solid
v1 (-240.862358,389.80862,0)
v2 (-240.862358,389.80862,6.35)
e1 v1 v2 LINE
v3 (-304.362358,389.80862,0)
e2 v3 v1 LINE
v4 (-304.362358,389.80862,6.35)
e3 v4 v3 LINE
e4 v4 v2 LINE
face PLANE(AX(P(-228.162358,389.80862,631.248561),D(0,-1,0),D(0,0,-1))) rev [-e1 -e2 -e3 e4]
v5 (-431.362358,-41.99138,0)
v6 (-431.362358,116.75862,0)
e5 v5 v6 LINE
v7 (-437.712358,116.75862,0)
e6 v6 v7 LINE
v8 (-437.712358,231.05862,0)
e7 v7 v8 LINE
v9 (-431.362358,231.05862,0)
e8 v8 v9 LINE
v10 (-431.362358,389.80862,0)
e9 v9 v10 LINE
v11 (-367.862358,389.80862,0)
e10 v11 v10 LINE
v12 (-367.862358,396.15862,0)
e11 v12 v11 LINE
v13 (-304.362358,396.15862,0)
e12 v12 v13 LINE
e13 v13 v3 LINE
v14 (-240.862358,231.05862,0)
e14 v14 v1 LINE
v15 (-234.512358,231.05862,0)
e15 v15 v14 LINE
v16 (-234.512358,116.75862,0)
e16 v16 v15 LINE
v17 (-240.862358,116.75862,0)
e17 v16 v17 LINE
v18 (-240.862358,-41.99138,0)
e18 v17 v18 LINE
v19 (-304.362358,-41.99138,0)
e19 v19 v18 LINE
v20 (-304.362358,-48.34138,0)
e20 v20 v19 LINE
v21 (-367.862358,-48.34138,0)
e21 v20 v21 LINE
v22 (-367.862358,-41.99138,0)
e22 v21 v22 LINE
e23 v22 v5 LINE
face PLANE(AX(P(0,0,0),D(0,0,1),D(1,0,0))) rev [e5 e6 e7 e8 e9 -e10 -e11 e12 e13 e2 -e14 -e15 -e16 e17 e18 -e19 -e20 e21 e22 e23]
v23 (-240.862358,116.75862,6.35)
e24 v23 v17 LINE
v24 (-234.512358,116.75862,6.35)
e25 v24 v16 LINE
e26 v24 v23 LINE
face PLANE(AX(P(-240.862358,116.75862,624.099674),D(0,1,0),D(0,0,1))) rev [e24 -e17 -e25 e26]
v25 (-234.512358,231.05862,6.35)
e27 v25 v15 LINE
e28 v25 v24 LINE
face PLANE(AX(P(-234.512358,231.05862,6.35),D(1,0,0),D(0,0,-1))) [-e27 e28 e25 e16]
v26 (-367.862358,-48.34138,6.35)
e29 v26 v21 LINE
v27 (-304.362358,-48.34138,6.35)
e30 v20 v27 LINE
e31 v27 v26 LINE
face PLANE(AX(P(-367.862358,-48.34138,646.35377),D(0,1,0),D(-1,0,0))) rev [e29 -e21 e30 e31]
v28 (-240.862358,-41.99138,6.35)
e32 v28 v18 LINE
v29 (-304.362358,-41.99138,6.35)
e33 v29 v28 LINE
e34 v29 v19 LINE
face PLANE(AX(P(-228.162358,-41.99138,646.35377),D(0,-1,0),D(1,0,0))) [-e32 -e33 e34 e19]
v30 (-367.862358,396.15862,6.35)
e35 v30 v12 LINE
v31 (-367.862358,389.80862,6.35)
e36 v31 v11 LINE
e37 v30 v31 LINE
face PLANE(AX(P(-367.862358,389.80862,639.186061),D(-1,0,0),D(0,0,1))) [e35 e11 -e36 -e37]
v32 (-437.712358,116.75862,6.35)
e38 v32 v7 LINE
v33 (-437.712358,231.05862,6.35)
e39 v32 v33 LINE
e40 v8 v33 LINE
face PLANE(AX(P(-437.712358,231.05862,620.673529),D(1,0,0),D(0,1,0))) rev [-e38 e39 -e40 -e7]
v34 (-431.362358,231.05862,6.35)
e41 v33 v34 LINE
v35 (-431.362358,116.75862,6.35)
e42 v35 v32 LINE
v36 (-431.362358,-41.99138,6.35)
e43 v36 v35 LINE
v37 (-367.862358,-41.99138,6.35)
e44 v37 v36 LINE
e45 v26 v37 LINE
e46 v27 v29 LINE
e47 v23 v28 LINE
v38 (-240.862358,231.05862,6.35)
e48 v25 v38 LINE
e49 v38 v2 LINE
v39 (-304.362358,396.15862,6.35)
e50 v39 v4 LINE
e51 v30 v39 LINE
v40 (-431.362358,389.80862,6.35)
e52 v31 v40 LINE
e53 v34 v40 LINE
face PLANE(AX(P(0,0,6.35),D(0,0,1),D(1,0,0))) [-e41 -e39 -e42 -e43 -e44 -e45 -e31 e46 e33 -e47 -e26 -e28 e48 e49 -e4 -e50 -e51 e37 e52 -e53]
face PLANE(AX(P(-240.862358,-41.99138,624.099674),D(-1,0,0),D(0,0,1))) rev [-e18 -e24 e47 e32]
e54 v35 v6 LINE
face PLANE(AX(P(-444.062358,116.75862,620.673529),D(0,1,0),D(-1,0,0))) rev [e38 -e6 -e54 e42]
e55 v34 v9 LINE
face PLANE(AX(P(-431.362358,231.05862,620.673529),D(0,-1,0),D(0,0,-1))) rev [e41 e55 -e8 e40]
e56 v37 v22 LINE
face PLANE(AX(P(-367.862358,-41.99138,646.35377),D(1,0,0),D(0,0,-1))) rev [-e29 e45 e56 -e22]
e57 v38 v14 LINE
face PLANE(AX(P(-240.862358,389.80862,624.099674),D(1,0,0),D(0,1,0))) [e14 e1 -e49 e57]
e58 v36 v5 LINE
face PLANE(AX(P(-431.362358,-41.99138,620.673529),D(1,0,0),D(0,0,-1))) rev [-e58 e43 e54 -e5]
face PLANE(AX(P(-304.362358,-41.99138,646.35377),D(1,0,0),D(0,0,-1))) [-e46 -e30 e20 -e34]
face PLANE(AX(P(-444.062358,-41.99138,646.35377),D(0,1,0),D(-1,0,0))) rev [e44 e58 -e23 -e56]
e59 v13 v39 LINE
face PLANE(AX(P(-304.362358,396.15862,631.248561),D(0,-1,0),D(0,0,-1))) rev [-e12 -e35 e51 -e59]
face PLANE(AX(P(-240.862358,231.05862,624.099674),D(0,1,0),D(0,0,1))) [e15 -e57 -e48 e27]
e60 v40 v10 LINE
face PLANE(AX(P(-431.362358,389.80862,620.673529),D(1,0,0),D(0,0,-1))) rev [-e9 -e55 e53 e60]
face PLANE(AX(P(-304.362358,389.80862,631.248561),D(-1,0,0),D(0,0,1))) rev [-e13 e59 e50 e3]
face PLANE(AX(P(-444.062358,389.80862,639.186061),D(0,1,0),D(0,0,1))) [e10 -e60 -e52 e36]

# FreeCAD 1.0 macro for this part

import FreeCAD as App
import Part
import Sketcher
from FreeCAD import Vector
Q = App.Units.Quantity


def add_polygon(sketch, points):
    """Adds a closed chain of lines whose ends are joined by coincident constraints."""
    first, n = sketch.GeometryCount, len(points)
    for a, b in zip(points, points[1:] + points[:1]):
        sketch.addGeometry(Part.LineSegment(App.Vector(*a, 0), App.Vector(*b, 0)), False)
    for i in range(n):
        sketch.addConstraint(Sketcher.Constraint("Coincident", first + i, 2, first + (i + 1) % n, 1))

doc = App.newDocument("Part")
body = doc.addObject("PartDesign::Body", "Body")

# Sketch on XY plane
sketch1 = doc.addObject("Sketcher::SketchObject", "Sketch")
body.addObject(sketch1)
sketch1.AttachmentSupport = (doc.XY_Plane, [""])
sketch1.MapMode = "FlatFace"
add_polygon(sketch1, [(-444.062358, 402.50862), (-444.062358, -54.69138), (-228.162358, -54.69138), (-228.162358, 402.50862)])  # lines 0-3
sketch1.addConstraint([
    Sketcher.Constraint("Vertical", 0),
    Sketcher.Constraint("Horizontal", 1),
    Sketcher.Constraint("Vertical", 2),
    Sketcher.Constraint("Horizontal", 3),
    Sketcher.Constraint("DistanceX", 1, 1, 1, 2, Q("215.9 mm")),
    Sketcher.Constraint("DistanceY", 0, 2, 0, 1, Q("457.2 mm")),
    Sketcher.Constraint("DistanceX", 0, 2, -1, 1, Q("444.062358 mm")),
    Sketcher.Constraint("DistanceY", 0, 2, -1, 1, Q("54.69138 mm")),
])
pad1 = doc.addObject("PartDesign::Pad", "Pad")
body.addObject(pad1)
pad1.Profile = sketch1
pad1.Length = 6.35

# Sketch on XY plane
sketch2 = doc.addObject("Sketcher::SketchObject", "Sketch001")
body.addObject(sketch2)
sketch2.AttachmentSupport = (doc.XY_Plane, [""])
sketch2.MapMode = "FlatFace"
sketch2.AttachmentOffset = App.Placement(Vector(0, 0, 6.35), App.Rotation())
add_polygon(sketch2, [(-367.862358, -41.99138), (-1442.380242, -41.99138), (-2810.59359, -1496.139456), (-1736.075706, -2507.15734), (-367.862358, -1053.009264)])  # lines 0-4
sketch2.addConstraint([
    Sketcher.Constraint("Horizontal", 0),
    Sketcher.Constraint("Vertical", 4),
    Sketcher.Constraint("Perpendicular", 1, 2),
    Sketcher.Constraint("Perpendicular", 2, 3),
    Sketcher.Constraint("Equal", 1, 3),
    Sketcher.Constraint("Distance", 2, Q("1475.379899 mm")),
    Sketcher.Constraint("Distance", 1, Q("1996.635768 mm")),
    Sketcher.Constraint("DistanceX", 0, 2, 0, 1, Q("1074.517884 mm")),
    Sketcher.Constraint("DistanceY", 0, 2, -1, 1, Q("41.99138 mm")),
    Sketcher.Constraint("DistanceX", 1, 2, -1, 1, Q("2810.59359 mm")),
])
pocket1 = doc.addObject("PartDesign::Pocket", "Pocket")
body.addObject(pocket1)
pocket1.Profile = sketch2
pocket1.Type = "ThroughAll"
pocket1.Midplane = True

# Sketch on XY plane
sketch3 = doc.addObject("Sketcher::SketchObject", "Sketch002")
body.addObject(sketch3)
sketch3.AttachmentSupport = (doc.XY_Plane, [""])
sketch3.MapMode = "FlatFace"
sketch3.AttachmentOffset = App.Placement(Vector(0, 0, 6.35), App.Rotation())
add_polygon(sketch3, [(770.155526, -41.99138), (-304.362358, -41.99138), (-304.362358, -1053.009264), (1063.850989, -2507.15734), (2138.368873, -1496.139456)])  # lines 0-4
sketch3.addConstraint([
    Sketcher.Constraint("Horizontal", 0),
    Sketcher.Constraint("Vertical", 1),
    Sketcher.Constraint("Perpendicular", 2, 3),
    Sketcher.Constraint("Perpendicular", 3, 4),
    Sketcher.Constraint("Equal", 2, 4),
    Sketcher.Constraint("Distance", 3, Q("1475.379899 mm")),
    Sketcher.Constraint("Distance", 2, Q("1996.635768 mm")),
    Sketcher.Constraint("DistanceX", 0, 2, 0, 1, Q("1074.517884 mm")),
    Sketcher.Constraint("DistanceX", 0, 2, -1, 1, Q("304.362358 mm")),
    Sketcher.Constraint("DistanceY", 0, 2, -1, 1, Q("41.99138 mm")),
])
pocket2 = doc.addObject("PartDesign::Pocket", "Pocket001")
body.addObject(pocket2)
pocket2.Profile = sketch3
pocket2.Type = "ThroughAll"
pocket2.Midplane = True

# Sketch on XY plane
sketch4 = doc.addObject("Sketcher::SketchObject", "Sketch003")
body.addObject(sketch4)
sketch4.AttachmentSupport = (doc.XY_Plane, [""])
sketch4.MapMode = "FlatFace"
sketch4.AttachmentOffset = App.Placement(Vector(0, 0, 6.35), App.Rotation())
add_polygon(sketch4, [(649.633007, -48.34138), (-1321.857724, -48.34138), (-1321.857724, -1956.332111), (649.633007, -1956.332111)])  # lines 0-3
sketch4.addConstraint([
    Sketcher.Constraint("Horizontal", 0),
    Sketcher.Constraint("Vertical", 1),
    Sketcher.Constraint("Horizontal", 2),
    Sketcher.Constraint("Vertical", 3),
    Sketcher.Constraint("DistanceX", 0, 2, 0, 1, Q("1971.490731 mm")),
    Sketcher.Constraint("DistanceY", 1, 2, 1, 1, Q("1907.990731 mm")),
    Sketcher.Constraint("DistanceY", 0, 2, -1, 1, Q("48.34138 mm")),
    Sketcher.Constraint("DistanceX", 0, 2, -1, 1, Q("1321.857724 mm")),
])
pocket3 = doc.addObject("PartDesign::Pocket", "Pocket002")
body.addObject(pocket3)
pocket3.Profile = sketch4
pocket3.Type = "ThroughAll"
pocket3.Midplane = True

# Sketch on XY plane
sketch5 = doc.addObject("Sketcher::SketchObject", "Sketch004")
body.addObject(sketch5)
sketch5.AttachmentSupport = (doc.XY_Plane, [""])
sketch5.MapMode = "FlatFace"
sketch5.AttachmentOffset = App.Placement(Vector(0, 0, 6.35), App.Rotation())
add_polygon(sketch5, [(-1430.972247, 389.80862), (-367.862358, 389.80862), (-367.862358, 1389.418508), (-1719.957069, 2827.404741), (-2783.066958, 1827.794852)])  # lines 0-4
sketch5.addConstraint([
    Sketcher.Constraint("Horizontal", 0),
    Sketcher.Constraint("Vertical", 1),
    Sketcher.Constraint("Perpendicular", 2, 3),
    Sketcher.Constraint("Perpendicular", 3, 4),
    Sketcher.Constraint("Equal", 2, 4),
    Sketcher.Constraint("DistanceX", 0, 1, 0, 2, Q("1063.109888 mm")),
    Sketcher.Constraint("DistanceY", 1, 1, 1, 2, Q("999.609888 mm")),
    Sketcher.Constraint("DistanceX", 3, 2, 1, 2, Q("2415.204599 mm")),
    Sketcher.Constraint("DistanceX", 0, 2, -1, 1, Q("367.862358 mm")),
    Sketcher.Constraint("DistanceY", -1, 1, 0, 2, Q("389.80862 mm")),
])
pocket4 = doc.addObject("PartDesign::Pocket", "Pocket003")
body.addObject(pocket4)
pocket4.Profile = sketch5
pocket4.Type = "ThroughAll"
pocket4.Midplane = True

# Sketch on XY plane
sketch6 = doc.addObject("Sketcher::SketchObject", "Sketch005")
body.addObject(sketch6)
sketch6.AttachmentSupport = (doc.XY_Plane, [""])
sketch6.MapMode = "FlatFace"
sketch6.AttachmentOffset = App.Placement(Vector(0, 0, 6.35), App.Rotation())
add_polygon(sketch6, [(-304.362358, 389.80862), (758.74753, 389.80862), (2110.842241, 1827.794852), (1047.732352, 2827.404741), (-304.362358, 1389.418508)])  # lines 0-4
sketch6.addConstraint([
    Sketcher.Constraint("Horizontal", 0),
    Sketcher.Constraint("Vertical", 4),
    Sketcher.Constraint("Perpendicular", 1, 2),
    Sketcher.Constraint("Perpendicular", 2, 3),
    Sketcher.Constraint("Equal", 1, 3),
    Sketcher.Constraint("DistanceX", 0, 1, 0, 2, Q("1063.109888 mm")),
    Sketcher.Constraint("DistanceY", 4, 2, 4, 1, Q("999.609888 mm")),
    Sketcher.Constraint("DistanceX", 3, 2, 1, 2, Q("2415.204599 mm")),
    Sketcher.Constraint("DistanceX", -1, 1, 0, 2, Q("758.74753 mm")),
    Sketcher.Constraint("DistanceY", -1, 1, 0, 2, Q("389.80862 mm")),
])
pocket5 = doc.addObject("PartDesign::Pocket", "Pocket004")
body.addObject(pocket5)
pocket5.Profile = sketch6
pocket5.Type = "ThroughAll"
pocket5.Midplane = True

# Sketch on XY plane
sketch7 = doc.addObject("Sketcher::SketchObject", "Sketch006")
body.addObject(sketch7)
sketch7.AttachmentSupport = (doc.XY_Plane, [""])
sketch7.MapMode = "FlatFace"
sketch7.AttachmentOffset = App.Placement(Vector(0, 0, 6.35), App.Rotation())
add_polygon(sketch7, [(-1309.734324, 396.15862), (637.509607, 396.15862), (637.509607, 2279.902551), (-1309.734324, 2279.902551)])  # lines 0-3
sketch7.addConstraint([
    Sketcher.Constraint("Horizontal", 0),
    Sketcher.Constraint("Vertical", 1),
    Sketcher.Constraint("Horizontal", 2),
    Sketcher.Constraint("Vertical", 3),
    Sketcher.Constraint("DistanceX", 0, 1, 0, 2, Q("1947.243931 mm")),
    Sketcher.Constraint("DistanceY", 1, 1, 1, 2, Q("1883.743931 mm")),
    Sketcher.Constraint("DistanceY", -1, 1, 0, 2, Q("396.15862 mm")),
    Sketcher.Constraint("DistanceX", -1, 1, 0, 2, Q("637.509607 mm")),
])
pocket6 = doc.addObject("PartDesign::Pocket", "Pocket005")
body.addObject(pocket6)
pocket6.Profile = sketch7
pocket6.Type = "ThroughAll"
pocket6.Midplane = True

# Sketch on XY plane
sketch8 = doc.addObject("Sketcher::SketchObject", "Sketch007")
body.addObject(sketch8)
sketch8.AttachmentSupport = (doc.XY_Plane, [""])
sketch8.MapMode = "FlatFace"
sketch8.AttachmentOffset = App.Placement(Vector(0, 0, 6.35), App.Rotation())
add_polygon(sketch8, [(-240.862358, 116.75862), (-240.862358, -1017.943061), (1230.798773, -2300.183385), (2219.450454, -1165.481704), (747.789323, 116.75862)])  # lines 0-4
sketch8.addConstraint([
    Sketcher.Constraint("Vertical", 0),
    Sketcher.Constraint("Horizontal", 4),
    Sketcher.Constraint("Perpendicular", 1, 2),
    Sketcher.Constraint("Perpendicular", 2, 3),
    Sketcher.Constraint("Equal", 1, 3),
    Sketcher.Constraint("DistanceX", 4, 2, 4, 1, Q("988.651681 mm")),
    Sketcher.Constraint("DistanceY", 0, 2, 0, 1, Q("1134.701681 mm")),
    Sketcher.Constraint("Distance", 1, Q("1951.903362 mm")),
    Sketcher.Constraint("DistanceX", 0, 2, -1, 1, Q("240.862358 mm")),
    Sketcher.Constraint("DistanceY", 0, 2, -1, 1, Q("1017.943061 mm")),
])
pocket7 = doc.addObject("PartDesign::Pocket", "Pocket006")
body.addObject(pocket7)
pocket7.Profile = sketch8
pocket7.Type = "ThroughAll"
pocket7.Midplane = True

# Sketch on XY plane
sketch9 = doc.addObject("Sketcher::SketchObject", "Sketch008")
body.addObject(sketch9)
sketch9.AttachmentSupport = (doc.XY_Plane, [""])
sketch9.MapMode = "FlatFace"
sketch9.AttachmentOffset = App.Placement(Vector(0, 0, 6.35), App.Rotation())
add_polygon(sketch9, [(-240.862358, 1365.760301), (-240.862358, 231.05862), (747.789323, 231.05862), (2219.450454, 1513.298944), (1230.798773, 2648.000625)])  # lines 0-4
sketch9.addConstraint([
    Sketcher.Constraint("Vertical", 0),
    Sketcher.Constraint("Horizontal", 1),
    Sketcher.Constraint("Perpendicular", 2, 3),
    Sketcher.Constraint("Perpendicular", 3, 4),
    Sketcher.Constraint("Equal", 2, 4),
    Sketcher.Constraint("DistanceX", 1, 1, 1, 2, Q("988.651681 mm")),
    Sketcher.Constraint("DistanceY", 0, 2, 0, 1, Q("1134.701681 mm")),
    Sketcher.Constraint("DistanceY", -1, 1, 4, 2, Q("1365.760301 mm")),
    Sketcher.Constraint("Distance", 2, Q("1951.903362 mm")),
    Sketcher.Constraint("DistanceX", 0, 2, -1, 1, Q("240.862358 mm")),
])
pocket8 = doc.addObject("PartDesign::Pocket", "Pocket007")
body.addObject(pocket8)
pocket8.Profile = sketch9
pocket8.Type = "ThroughAll"
pocket8.Midplane = True

# Sketch on XY plane
sketch10 = doc.addObject("Sketcher::SketchObject", "Sketch009")
body.addObject(sketch10)
sketch10.AttachmentSupport = (doc.XY_Plane, [""])
sketch10.MapMode = "FlatFace"
sketch10.AttachmentOffset = App.Placement(Vector(0, 0, 6.35), App.Rotation())
add_polygon(sketch10, [(-234.512358, 939.55862), (-234.512358, -591.74138), (1182.487642, -591.74138), (1182.487642, 939.55862)])  # lines 0-3
sketch10.addConstraint([
    Sketcher.Constraint("Vertical", 0),
    Sketcher.Constraint("Horizontal", 1),
    Sketcher.Constraint("Vertical", 2),
    Sketcher.Constraint("Horizontal", 3),
    Sketcher.Constraint("DistanceX", 1, 1, 1, 2, Q("1417 mm")),
    Sketcher.Constraint("DistanceY", 0, 2, 0, 1, Q("1531.3 mm")),
    Sketcher.Constraint("DistanceX", 0, 2, -1, 1, Q("234.512358 mm")),
    Sketcher.Constraint("DistanceY", 0, 2, -1, 1, Q("591.74138 mm")),
])
pocket9 = doc.addObject("PartDesign::Pocket", "Pocket008")
body.addObject(pocket9)
pocket9.Profile = sketch10
pocket9.Type = "ThroughAll"

# Sketch on XY plane
sketch11 = doc.addObject("Sketcher::SketchObject", "Sketch010")
body.addObject(sketch11)
sketch11.AttachmentSupport = (doc.XY_Plane, [""])
sketch11.MapMode = "FlatFace"
sketch11.AttachmentOffset = App.Placement(Vector(0, 0, 6.35), App.Rotation())
add_polygon(sketch11, [(-431.362358, -1012.668943), (-431.362358, 116.75862), (-1414.739921, 116.75862), (-2878.883866, -1158.052046), (-1895.506303, -2287.479609)])  # lines 0-4
sketch11.addConstraint([
    Sketcher.Constraint("Vertical", 0),
    Sketcher.Constraint("Horizontal", 1),
    Sketcher.Constraint("Perpendicular", 2, 3),
    Sketcher.Constraint("Perpendicular", 3, 4),
    Sketcher.Constraint("Equal", 2, 4),
    Sketcher.Constraint("DistanceX", 1, 2, 1, 1, Q("983.377563 mm")),
    Sketcher.Constraint("DistanceY", 0, 1, 0, 2, Q("1129.427563 mm")),
    Sketcher.Constraint("DistanceX", 0, 2, -1, 1, Q("431.362358 mm")),
    Sketcher.Constraint("DistanceY", -1, 1, 0, 2, Q("116.75862 mm")),
    Sketcher.Constraint("DistanceY", 3, 2, -1, 1, Q("2287.479609 mm")),
])
pocket10 = doc.addObject("PartDesign::Pocket", "Pocket009")
body.addObject(pocket10)
pocket10.Profile = sketch11
pocket10.Type = "ThroughAll"
pocket10.Midplane = True

# Sketch on XY plane
sketch12 = doc.addObject("Sketcher::SketchObject", "Sketch011")
body.addObject(sketch12)
sketch12.AttachmentSupport = (doc.XY_Plane, [""])
sketch12.MapMode = "FlatFace"
sketch12.AttachmentOffset = App.Placement(Vector(0, 0, 6.35), App.Rotation())
add_polygon(sketch12, [(-431.362358, 231.05862), (-431.362358, 1360.486183), (-1895.506303, 2635.296849), (-2878.883866, 1505.869286), (-1414.739921, 231.05862)])  # lines 0-4
sketch12.addConstraint([
    Sketcher.Constraint("Vertical", 0),
    Sketcher.Constraint("Horizontal", 4),
    Sketcher.Constraint("Perpendicular", 1, 2),
    Sketcher.Constraint("Perpendicular", 2, 3),
    Sketcher.Constraint("Equal", 1, 3),
    Sketcher.Constraint("DistanceX", 4, 1, 4, 2, Q("983.377563 mm")),
    Sketcher.Constraint("DistanceY", 0, 1, 0, 2, Q("1129.427563 mm")),
    Sketcher.Constraint("DistanceX", 0, 2, -1, 1, Q("431.362358 mm")),
    Sketcher.Constraint("DistanceY", -1, 1, 1, 2, Q("2635.296849 mm")),
    Sketcher.Constraint("DistanceY", -1, 1, 3, 2, Q("231.05862 mm")),
])
pocket11 = doc.addObject("PartDesign::Pocket", "Pocket010")
body.addObject(pocket11)
pocket11.Profile = sketch12
pocket11.Type = "ThroughAll"
pocket11.Midplane = True

# Sketch on XY plane
sketch13 = doc.addObject("Sketcher::SketchObject", "Sketch012")
body.addObject(sketch13)
sketch13.AttachmentSupport = (doc.XY_Plane, [""])
sketch13.MapMode = "FlatFace"
sketch13.AttachmentOffset = App.Placement(Vector(0, 0, 6.35), App.Rotation())
add_polygon(sketch13, [(-437.712358, -584.196082), (-437.712358, 932.013322), (-1839.621762, 932.013322), (-1839.621762, -584.196082)])  # lines 0-3
sketch13.addConstraint([
    Sketcher.Constraint("Vertical", 0),
    Sketcher.Constraint("Horizontal", 1),
    Sketcher.Constraint("Vertical", 2),
    Sketcher.Constraint("Horizontal", 3),
    Sketcher.Constraint("DistanceX", 1, 2, 1, 1, Q("1401.909404 mm")),
    Sketcher.Constraint("DistanceY", 0, 1, 0, 2, Q("1516.209404 mm")),
    Sketcher.Constraint("DistanceX", 0, 2, -1, 1, Q("437.712358 mm")),
    Sketcher.Constraint("DistanceY", -1, 1, 0, 2, Q("932.013322 mm")),
])
pocket12 = doc.addObject("PartDesign::Pocket", "Pocket011")
body.addObject(pocket12)
pocket12.Profile = sketch13
pocket12.Type = "ThroughAll"
pocket12.Midplane = True

doc.recompute()
